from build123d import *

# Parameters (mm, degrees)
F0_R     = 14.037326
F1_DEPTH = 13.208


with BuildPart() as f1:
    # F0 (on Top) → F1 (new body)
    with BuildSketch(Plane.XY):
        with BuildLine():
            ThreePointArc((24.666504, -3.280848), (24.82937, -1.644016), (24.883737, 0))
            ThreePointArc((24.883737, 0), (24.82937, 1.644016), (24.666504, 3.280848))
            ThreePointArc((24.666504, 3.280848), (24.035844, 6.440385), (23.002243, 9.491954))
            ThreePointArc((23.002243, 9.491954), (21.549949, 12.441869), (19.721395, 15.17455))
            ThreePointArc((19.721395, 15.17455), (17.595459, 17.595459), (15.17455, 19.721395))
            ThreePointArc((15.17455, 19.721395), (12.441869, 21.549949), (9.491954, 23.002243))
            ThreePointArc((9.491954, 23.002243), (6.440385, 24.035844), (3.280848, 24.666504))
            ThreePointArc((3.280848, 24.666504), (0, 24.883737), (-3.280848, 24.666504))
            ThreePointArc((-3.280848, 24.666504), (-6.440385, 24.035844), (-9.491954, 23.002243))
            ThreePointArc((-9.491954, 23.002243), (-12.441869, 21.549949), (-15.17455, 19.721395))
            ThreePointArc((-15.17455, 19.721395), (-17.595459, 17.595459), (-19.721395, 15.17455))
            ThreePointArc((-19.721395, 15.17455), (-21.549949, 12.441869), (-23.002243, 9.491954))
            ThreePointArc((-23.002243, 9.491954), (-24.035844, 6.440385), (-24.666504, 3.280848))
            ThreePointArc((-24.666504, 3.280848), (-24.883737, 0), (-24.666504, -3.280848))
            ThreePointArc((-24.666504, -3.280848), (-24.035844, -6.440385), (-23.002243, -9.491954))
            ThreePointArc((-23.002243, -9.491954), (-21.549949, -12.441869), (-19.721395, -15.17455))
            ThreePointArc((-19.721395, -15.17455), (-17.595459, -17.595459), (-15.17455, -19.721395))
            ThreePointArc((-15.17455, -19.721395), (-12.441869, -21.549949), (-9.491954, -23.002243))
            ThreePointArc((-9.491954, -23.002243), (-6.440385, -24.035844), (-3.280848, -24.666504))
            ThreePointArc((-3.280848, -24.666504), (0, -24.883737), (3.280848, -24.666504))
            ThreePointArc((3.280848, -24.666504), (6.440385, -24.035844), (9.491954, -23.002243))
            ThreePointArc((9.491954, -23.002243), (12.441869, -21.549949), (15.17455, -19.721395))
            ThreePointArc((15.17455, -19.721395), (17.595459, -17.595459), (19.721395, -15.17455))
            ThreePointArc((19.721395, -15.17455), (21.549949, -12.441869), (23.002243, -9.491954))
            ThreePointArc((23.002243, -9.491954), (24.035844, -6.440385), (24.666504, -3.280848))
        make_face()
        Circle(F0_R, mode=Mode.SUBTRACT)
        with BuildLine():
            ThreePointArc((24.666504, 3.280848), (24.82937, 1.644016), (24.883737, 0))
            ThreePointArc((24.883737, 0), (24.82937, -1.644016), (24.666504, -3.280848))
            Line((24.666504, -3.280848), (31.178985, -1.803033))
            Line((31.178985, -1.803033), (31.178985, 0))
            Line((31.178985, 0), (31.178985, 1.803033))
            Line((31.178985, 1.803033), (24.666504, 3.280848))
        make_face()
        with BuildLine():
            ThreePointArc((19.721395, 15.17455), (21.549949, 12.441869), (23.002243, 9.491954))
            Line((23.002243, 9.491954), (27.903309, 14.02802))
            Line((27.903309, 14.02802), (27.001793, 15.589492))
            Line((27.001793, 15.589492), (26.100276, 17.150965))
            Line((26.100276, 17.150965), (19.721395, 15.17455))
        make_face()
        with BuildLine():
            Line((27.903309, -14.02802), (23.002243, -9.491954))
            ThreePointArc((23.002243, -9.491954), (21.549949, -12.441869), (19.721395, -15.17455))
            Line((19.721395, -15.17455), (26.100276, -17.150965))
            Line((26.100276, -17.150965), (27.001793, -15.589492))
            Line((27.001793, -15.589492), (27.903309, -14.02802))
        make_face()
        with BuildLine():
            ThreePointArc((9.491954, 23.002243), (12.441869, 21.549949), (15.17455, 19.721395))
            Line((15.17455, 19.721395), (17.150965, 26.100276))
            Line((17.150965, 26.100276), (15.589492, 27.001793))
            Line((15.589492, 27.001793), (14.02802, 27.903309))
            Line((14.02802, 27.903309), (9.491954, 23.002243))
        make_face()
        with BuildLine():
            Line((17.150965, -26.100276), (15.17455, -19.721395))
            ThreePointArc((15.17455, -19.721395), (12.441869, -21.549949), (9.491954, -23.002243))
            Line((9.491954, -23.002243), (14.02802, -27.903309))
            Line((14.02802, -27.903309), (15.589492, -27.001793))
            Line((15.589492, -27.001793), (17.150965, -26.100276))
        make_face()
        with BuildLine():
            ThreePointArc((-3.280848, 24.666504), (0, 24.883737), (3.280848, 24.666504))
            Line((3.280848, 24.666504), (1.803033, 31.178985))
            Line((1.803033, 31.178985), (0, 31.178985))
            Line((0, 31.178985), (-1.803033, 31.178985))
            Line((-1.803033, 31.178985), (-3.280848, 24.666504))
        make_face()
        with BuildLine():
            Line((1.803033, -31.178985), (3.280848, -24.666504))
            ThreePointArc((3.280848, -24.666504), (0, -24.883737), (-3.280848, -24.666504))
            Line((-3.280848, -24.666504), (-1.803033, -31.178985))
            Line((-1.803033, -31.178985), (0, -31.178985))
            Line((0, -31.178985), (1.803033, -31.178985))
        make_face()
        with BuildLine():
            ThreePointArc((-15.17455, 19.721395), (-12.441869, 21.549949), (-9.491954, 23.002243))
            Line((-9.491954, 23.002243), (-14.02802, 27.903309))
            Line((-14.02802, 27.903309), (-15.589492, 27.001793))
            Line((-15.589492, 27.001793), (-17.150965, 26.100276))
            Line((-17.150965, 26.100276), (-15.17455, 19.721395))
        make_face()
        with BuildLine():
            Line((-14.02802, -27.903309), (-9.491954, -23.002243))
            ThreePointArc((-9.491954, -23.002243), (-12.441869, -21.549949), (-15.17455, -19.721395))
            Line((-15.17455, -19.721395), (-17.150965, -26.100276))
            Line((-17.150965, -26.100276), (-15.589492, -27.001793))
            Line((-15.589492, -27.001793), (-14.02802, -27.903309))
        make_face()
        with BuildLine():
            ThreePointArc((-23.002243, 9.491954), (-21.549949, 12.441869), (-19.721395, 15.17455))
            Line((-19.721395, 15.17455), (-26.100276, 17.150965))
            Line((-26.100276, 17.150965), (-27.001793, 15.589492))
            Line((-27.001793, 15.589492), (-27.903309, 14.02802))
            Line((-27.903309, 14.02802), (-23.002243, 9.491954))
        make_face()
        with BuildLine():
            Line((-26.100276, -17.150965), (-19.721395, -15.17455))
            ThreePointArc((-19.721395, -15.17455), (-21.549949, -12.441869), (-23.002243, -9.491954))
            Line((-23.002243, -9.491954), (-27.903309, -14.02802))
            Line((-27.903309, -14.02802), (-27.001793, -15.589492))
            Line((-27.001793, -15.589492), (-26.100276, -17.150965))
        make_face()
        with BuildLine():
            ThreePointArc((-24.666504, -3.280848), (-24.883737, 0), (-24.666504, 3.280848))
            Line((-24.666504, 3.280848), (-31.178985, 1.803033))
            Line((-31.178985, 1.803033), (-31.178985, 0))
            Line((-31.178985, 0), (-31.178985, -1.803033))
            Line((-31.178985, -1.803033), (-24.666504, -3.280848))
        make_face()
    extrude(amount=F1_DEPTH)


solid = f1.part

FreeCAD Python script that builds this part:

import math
import FreeCAD as App
import Part
import Sketcher
Q = App.Units.Quantity

doc = App.newDocument("Part")
params = doc.addObject("Spreadsheet::Sheet", "Params")
for row, (alias, value) in enumerate([
    ("pad1_length", "0.52 in"),
], start=1):
    params.set(f"A{row}", alias)
    params.set(f"B{row}", "=" + value)
    params.setAlias(f"B{row}", alias)

body = doc.addObject("PartDesign::Body", "Body")

sketch1 = body.newObject("Sketcher::SketchObject", "Sketch")
sketch1.AttachmentSupport = (doc.getObject("XY_Plane"), [""])
sketch1.MapMode = "FlatFace"
sketch1.addGeometry(Part.ArcOfCircle(Part.Circle(App.Vector(-0.000052, 0.000015, 0), App.Vector(0, 0, 1), 24.883791), math.radians(-22.423644), math.radians(-7.576359)), False)
sketch1.addGeometry(Part.LineSegment(App.Vector(24.666504, -3.280848, 0), App.Vector(31.178985, -1.803033, 0)), False)
sketch1.addGeometry(Part.LineSegment(App.Vector(31.178985, -1.803033, 0), App.Vector(31.178985, 1.803033, 0)), False)
sketch1.addGeometry(Part.LineSegment(App.Vector(31.178985, 1.803033, 0), App.Vector(24.666504, 3.280848, 0)), False)
sketch1.addGeometry(Part.ArcOfCircle(Part.Circle(App.Vector(-0.000052, -0.000015, 0), App.Vector(0, 0, 1), 24.883791), math.radians(7.576359), math.radians(22.423644)), False)
sketch1.addGeometry(Part.LineSegment(App.Vector(23.002243, 9.491954, 0), App.Vector(27.903309, 14.02802, 0)), False)
sketch1.addGeometry(Part.LineSegment(App.Vector(27.903309, 14.02802, 0), App.Vector(27.001793, 15.589492, 0)), False)
sketch1.addGeometry(Part.LineSegment(App.Vector(27.001793, 15.589492, 0), App.Vector(26.100276, 17.150965, 0)), False)
sketch1.addGeometry(Part.LineSegment(App.Vector(26.100276, 17.150965, 0), App.Vector(19.721395, 15.17455, 0)), False)
sketch1.addGeometry(Part.ArcOfCircle(Part.Circle(App.Vector(-0.000057, -0.000057, 0), App.Vector(0, 0, 1), 24.883817), math.radians(37.576365), math.radians(52.423635)), False)
sketch1.addGeometry(Part.LineSegment(App.Vector(15.17455, 19.721395, 0), App.Vector(17.150965, 26.100276, 0)), False)
sketch1.addGeometry(Part.LineSegment(App.Vector(17.150965, 26.100276, 0), App.Vector(15.589492, 27.001793, 0)), False)
sketch1.addGeometry(Part.LineSegment(App.Vector(15.589492, 27.001793, 0), App.Vector(14.02802, 27.903309, 0)), False)
sketch1.addGeometry(Part.LineSegment(App.Vector(14.02802, 27.903309, 0), App.Vector(9.491954, 23.002243, 0)), False)
sketch1.addGeometry(Part.ArcOfCircle(Part.Circle(App.Vector(-0.000015, -0.000052, 0), App.Vector(0, 0, 1), 24.883791), math.radians(67.576356), math.radians(82.423641)), False)
sketch1.addGeometry(Part.LineSegment(App.Vector(3.280848, 24.666504, 0), App.Vector(1.803033, 31.178985, 0)), False)
sketch1.addGeometry(Part.LineSegment(App.Vector(1.803033, 31.178985, 0), App.Vector(-1.803033, 31.178985, 0)), False)
sketch1.addGeometry(Part.LineSegment(App.Vector(-1.803033, 31.178985, 0), App.Vector(-3.280848, 24.666504, 0)), False)
sketch1.addGeometry(Part.ArcOfCircle(Part.Circle(App.Vector(0.000015, -0.000052, 0), App.Vector(0, 0, 1), 24.883791), math.radians(97.576359), math.radians(112.423644)), False)
sketch1.addGeometry(Part.LineSegment(App.Vector(-9.491954, 23.002243, 0), App.Vector(-14.02802, 27.903309, 0)), False)
sketch1.addGeometry(Part.LineSegment(App.Vector(-14.02802, 27.903309, 0), App.Vector(-15.589492, 27.001793, 0)), False)
sketch1.addGeometry(Part.LineSegment(App.Vector(-15.589492, 27.001793, 0), App.Vector(-17.150965, 26.100276, 0)), False)
sketch1.addGeometry(Part.LineSegment(App.Vector(-17.150965, 26.100276, 0), App.Vector(-15.17455, 19.721395, 0)), False)
sketch1.addGeometry(Part.ArcOfCircle(Part.Circle(App.Vector(0.000057, -0.000057, 0), App.Vector(0, 0, 1), 24.883817), math.radians(127.576365), math.radians(142.423635)), False)
sketch1.addGeometry(Part.LineSegment(App.Vector(-19.721395, 15.17455, 0), App.Vector(-26.100276, 17.150965, 0)), False)
sketch1.addGeometry(Part.LineSegment(App.Vector(-26.100276, 17.150965, 0), App.Vector(-27.001793, 15.589492, 0)), False)
sketch1.addGeometry(Part.LineSegment(App.Vector(-27.001793, 15.589492, 0), App.Vector(-27.903309, 14.02802, 0)), False)
sketch1.addGeometry(Part.LineSegment(App.Vector(-27.903309, 14.02802, 0), App.Vector(-23.002243, 9.491954, 0)), False)
sketch1.addGeometry(Part.ArcOfCircle(Part.Circle(App.Vector(0.000052, -0.000015, 0), App.Vector(0, 0, 1), 24.883791), math.radians(157.576356), math.radians(172.423641)), False)
sketch1.addGeometry(Part.LineSegment(App.Vector(-24.666504, 3.280848, 0), App.Vector(-31.178985, 1.803033, 0)), False)
sketch1.addGeometry(Part.LineSegment(App.Vector(-31.178985, 1.803033, 0), App.Vector(-31.178985, -1.803033, 0)), False)
sketch1.addGeometry(Part.LineSegment(App.Vector(-31.178985, -1.803033, 0), App.Vector(-24.666504, -3.280848, 0)), False)
sketch1.addGeometry(Part.ArcOfCircle(Part.Circle(App.Vector(0.000052, 0.000015, 0), App.Vector(0, 0, 1), 24.883791), math.radians(-172.423641), math.radians(-157.576356)), False)
sketch1.addGeometry(Part.LineSegment(App.Vector(-23.002243, -9.491954, 0), App.Vector(-27.903309, -14.02802, 0)), False)
sketch1.addGeometry(Part.LineSegment(App.Vector(-27.903309, -14.02802, 0), App.Vector(-27.001793, -15.589492, 0)), False)
sketch1.addGeometry(Part.LineSegment(App.Vector(-27.001793, -15.589492, 0), App.Vector(-26.100276, -17.150965, 0)), False)
sketch1.addGeometry(Part.LineSegment(App.Vector(-26.100276, -17.150965, 0), App.Vector(-19.721395, -15.17455, 0)), False)
sketch1.addGeometry(Part.ArcOfCircle(Part.Circle(App.Vector(0.000057, 0.000057, 0), App.Vector(0, 0, 1), 24.883817), math.radians(-142.423635), math.radians(-127.576365)), False)
sketch1.addGeometry(Part.LineSegment(App.Vector(-15.17455, -19.721395, 0), App.Vector(-17.150965, -26.100276, 0)), False)
sketch1.addGeometry(Part.LineSegment(App.Vector(-17.150965, -26.100276, 0), App.Vector(-15.589492, -27.001793, 0)), False)
sketch1.addGeometry(Part.LineSegment(App.Vector(-15.589492, -27.001793, 0), App.Vector(-14.02802, -27.903309, 0)), False)
sketch1.addGeometry(Part.LineSegment(App.Vector(-14.02802, -27.903309, 0), App.Vector(-9.491954, -23.002243, 0)), False)
sketch1.addGeometry(Part.ArcOfCircle(Part.Circle(App.Vector(0.000015, 0.000052, 0), App.Vector(0, 0, 1), 24.883791), math.radians(-112.423644), math.radians(-97.576359)), False)
sketch1.addGeometry(Part.LineSegment(App.Vector(-3.280848, -24.666504, 0), App.Vector(-1.803033, -31.178985, 0)), False)
sketch1.addGeometry(Part.LineSegment(App.Vector(-1.803033, -31.178985, 0), App.Vector(1.803033, -31.178985, 0)), False)
sketch1.addGeometry(Part.LineSegment(App.Vector(1.803033, -31.178985, 0), App.Vector(3.280848, -24.666504, 0)), False)
sketch1.addGeometry(Part.ArcOfCircle(Part.Circle(App.Vector(-0.000015, 0.000052, 0), App.Vector(0, 0, 1), 24.883791), math.radians(-82.423641), math.radians(-67.576356)), False)
sketch1.addGeometry(Part.LineSegment(App.Vector(9.491954, -23.002243, 0), App.Vector(14.02802, -27.903309, 0)), False)
sketch1.addGeometry(Part.LineSegment(App.Vector(14.02802, -27.903309, 0), App.Vector(15.589492, -27.001793, 0)), False)
sketch1.addGeometry(Part.LineSegment(App.Vector(15.589492, -27.001793, 0), App.Vector(17.150965, -26.100276, 0)), False)
sketch1.addGeometry(Part.LineSegment(App.Vector(17.150965, -26.100276, 0), App.Vector(15.17455, -19.721395, 0)), False)
sketch1.addGeometry(Part.ArcOfCircle(Part.Circle(App.Vector(-0.000057, 0.000057, 0), App.Vector(0, 0, 1), 24.883817), math.radians(-52.423635), math.radians(-37.576365)), False)
sketch1.addGeometry(Part.LineSegment(App.Vector(19.721395, -15.17455, 0), App.Vector(26.100276, -17.150965, 0)), False)
sketch1.addGeometry(Part.LineSegment(App.Vector(26.100276, -17.150965, 0), App.Vector(27.001793, -15.589492, 0)), False)
sketch1.addGeometry(Part.LineSegment(App.Vector(27.001793, -15.589492, 0), App.Vector(27.903309, -14.02802, 0)), False)
sketch1.addGeometry(Part.LineSegment(App.Vector(27.903309, -14.02802, 0), App.Vector(23.002243, -9.491954, 0)), False)
sketch1.addGeometry(Part.Circle(App.Vector(0, 0, 0), App.Vector(0, 0, 1), 14.037326), False)
sketch1.addConstraint(Sketcher.Constraint("Coincident", 0, 2, 1, 1))
sketch1.addConstraint(Sketcher.Constraint("Coincident", 1, 2, 2, 1))
sketch1.addConstraint(Sketcher.Constraint("Coincident", 2, 2, 3, 1))
sketch1.addConstraint(Sketcher.Constraint("Coincident", 3, 2, 4, 1))
sketch1.addConstraint(Sketcher.Constraint("Coincident", 4, 2, 5, 1))
sketch1.addConstraint(Sketcher.Constraint("Coincident", 5, 2, 6, 1))
sketch1.addConstraint(Sketcher.Constraint("Coincident", 6, 2, 7, 1))
sketch1.addConstraint(Sketcher.Constraint("Coincident", 7, 2, 8, 1))
sketch1.addConstraint(Sketcher.Constraint("Coincident", 8, 2, 9, 1))
sketch1.addConstraint(Sketcher.Constraint("Coincident", 9, 2, 10, 1))
sketch1.addConstraint(Sketcher.Constraint("Coincident", 10, 2, 11, 1))
sketch1.addConstraint(Sketcher.Constraint("Coincident", 11, 2, 12, 1))
sketch1.addConstraint(Sketcher.Constraint("Coincident", 12, 2, 13, 1))
sketch1.addConstraint(Sketcher.Constraint("Coincident", 13, 2, 14, 1))
sketch1.addConstraint(Sketcher.Constraint("Coincident", 14, 2, 15, 1))
sketch1.addConstraint(Sketcher.Constraint("Coincident", 15, 2, 16, 1))
sketch1.addConstraint(Sketcher.Constraint("Coincident", 16, 2, 17, 1))
sketch1.addConstraint(Sketcher.Constraint("Coincident", 17, 2, 18, 1))
sketch1.addConstraint(Sketcher.Constraint("Coincident", 18, 2, 19, 1))
sketch1.addConstraint(Sketcher.Constraint("Coincident", 19, 2, 20, 1))
sketch1.addConstraint(Sketcher.Constraint("Coincident", 20, 2, 21, 1))
sketch1.addConstraint(Sketcher.Constraint("Coincident", 21, 2, 22, 1))
sketch1.addConstraint(Sketcher.Constraint("Coincident", 22, 2, 23, 1))
sketch1.addConstraint(Sketcher.Constraint("Coincident", 23, 2, 24, 1))
sketch1.addConstraint(Sketcher.Constraint("Coincident", 24, 2, 25, 1))
sketch1.addConstraint(Sketcher.Constraint("Coincident", 25, 2, 26, 1))
sketch1.addConstraint(Sketcher.Constraint("Coincident", 26, 2, 27, 1))
sketch1.addConstraint(Sketcher.Constraint("Coincident", 27, 2, 28, 1))
sketch1.addConstraint(Sketcher.Constraint("Coincident", 28, 2, 29, 1))
sketch1.addConstraint(Sketcher.Constraint("Coincident", 29, 2, 30, 1))
sketch1.addConstraint(Sketcher.Constraint("Coincident", 30, 2, 31, 1))
sketch1.addConstraint(Sketcher.Constraint("Coincident", 31, 2, 32, 1))
sketch1.addConstraint(Sketcher.Constraint("Coincident", 32, 2, 33, 1))
sketch1.addConstraint(Sketcher.Constraint("Coincident", 33, 2, 34, 1))
sketch1.addConstraint(Sketcher.Constraint("Coincident", 34, 2, 35, 1))
sketch1.addConstraint(Sketcher.Constraint("Coincident", 35, 2, 36, 1))
sketch1.addConstraint(Sketcher.Constraint("Coincident", 36, 2, 37, 1))
sketch1.addConstraint(Sketcher.Constraint("Coincident", 37, 2, 38, 1))
sketch1.addConstraint(Sketcher.Constraint("Coincident", 38, 2, 39, 1))
sketch1.addConstraint(Sketcher.Constraint("Coincident", 39, 2, 40, 1))
sketch1.addConstraint(Sketcher.Constraint("Coincident", 40, 2, 41, 1))
sketch1.addConstraint(Sketcher.Constraint("Coincident", 41, 2, 42, 1))
sketch1.addConstraint(Sketcher.Constraint("Coincident", 42, 2, 43, 1))
sketch1.addConstraint(Sketcher.Constraint("Coincident", 43, 2, 44, 1))
sketch1.addConstraint(Sketcher.Constraint("Coincident", 44, 2, 45, 1))
sketch1.addConstraint(Sketcher.Constraint("Coincident", 45, 2, 46, 1))
sketch1.addConstraint(Sketcher.Constraint("Coincident", 46, 2, 47, 1))
sketch1.addConstraint(Sketcher.Constraint("Coincident", 47, 2, 48, 1))
sketch1.addConstraint(Sketcher.Constraint("Coincident", 48, 2, 49, 1))
sketch1.addConstraint(Sketcher.Constraint("Coincident", 49, 2, 50, 1))
sketch1.addConstraint(Sketcher.Constraint("Coincident", 50, 2, 51, 1))
sketch1.addConstraint(Sketcher.Constraint("Coincident", 51, 2, 52, 1))
sketch1.addConstraint(Sketcher.Constraint("Coincident", 52, 2, 53, 1))
sketch1.addConstraint(Sketcher.Constraint("Coincident", 53, 2, 54, 1))
sketch1.addConstraint(Sketcher.Constraint("Coincident", 54, 2, 55, 1))
sketch1.addConstraint(Sketcher.Constraint("Coincident", 55, 2, 0, 1))
sketch1.addConstraint(Sketcher.Constraint("Vertical", 2))
sketch1.addConstraint(Sketcher.Constraint("Horizontal", 16))
sketch1.addConstraint(Sketcher.Constraint("Vertical", 30))
sketch1.addConstraint(Sketcher.Constraint("Horizontal", 44))
sketch1.addConstraint(Sketcher.Constraint("Coincident", 56, 3, -1, 1))
sketch1.addConstraint(Sketcher.Constraint("Equal", 0, 4))
sketch1.addConstraint(Sketcher.Constraint("Equal", 4, 14))
sketch1.addConstraint(Sketcher.Constraint("Equal", 14, 18))
sketch1.addConstraint(Sketcher.Constraint("Equal", 9, 23))
sketch1.addConstraint(Sketcher.Constraint("Equal", 18, 28))
sketch1.addConstraint(Sketcher.Constraint("Equal", 28, 32))
sketch1.addConstraint(Sketcher.Constraint("Equal", 23, 37))
sketch1.addConstraint(Sketcher.Constraint("Equal", 32, 42))
sketch1.addConstraint(Sketcher.Constraint("Equal", 42, 46))
sketch1.addConstraint(Sketcher.Constraint("Equal", 37, 51))
sketch1.addConstraint(Sketcher.Constraint("Symmetric", 0, 3, 28, 3, -1, 1))
sketch1.addConstraint(Sketcher.Constraint("Symmetric", 4, 3, 32, 3, -1, 1))
sketch1.addConstraint(Sketcher.Constraint("Symmetric", 9, 3, 37, 3, -1, 1))
sketch1.addConstraint(Sketcher.Constraint("Symmetric", 14, 3, 42, 3, -1, 1))
sketch1.addConstraint(Sketcher.Constraint("Symmetric", 18, 3, 46, 3, -1, 1))
sketch1.addConstraint(Sketcher.Constraint("Symmetric", 23, 3, 51, 3, -1, 1))
sketch1.addConstraint(Sketcher.Constraint("Symmetric", 1, 2, 29, 2, -1, 1))
sketch1.addConstraint(Sketcher.Constraint("Symmetric", 5, 2, 33, 2, -1, 1))
sketch1.addConstraint(Sketcher.Constraint("Symmetric", 6, 2, 34, 2, -1, 1))
sketch1.addConstraint(Sketcher.Constraint("Symmetric", 7, 2, 35, 2, -1, 1))
sketch1.addConstraint(Sketcher.Constraint("Symmetric", 10, 2, 38, 2, -1, 1))
sketch1.addConstraint(Sketcher.Constraint("Symmetric", 11, 2, 39, 2, -1, 1))
sketch1.addConstraint(Sketcher.Constraint("Symmetric", 12, 2, 40, 2, -1, 1))
sketch1.addConstraint(Sketcher.Constraint("Symmetric", 15, 2, 43, 2, -1, 1))
sketch1.addConstraint(Sketcher.Constraint("Symmetric", 19, 2, 47, 2, -1, 1))
sketch1.addConstraint(Sketcher.Constraint("Symmetric", 20, 2, 48, 2, -1, 1))
sketch1.addConstraint(Sketcher.Constraint("Symmetric", 21, 2, 49, 2, -1, 1))
sketch1.addConstraint(Sketcher.Constraint("Symmetric", 24, 2, 52, 2, -1, 1))
sketch1.addConstraint(Sketcher.Constraint("Symmetric", 25, 2, 53, 2, -1, 1))
sketch1.addConstraint(Sketcher.Constraint("Symmetric", 26, 2, 54, 2, -1, 1))
sketch1.addConstraint(Sketcher.Constraint("Symmetric", 14, 3, 18, 3, -2))
sketch1.addConstraint(Sketcher.Constraint("Symmetric", 9, 3, 23, 3, -2))
sketch1.addConstraint(Sketcher.Constraint("Symmetric", 4, 3, 28, 3, -2))
sketch1.addConstraint(Sketcher.Constraint("Symmetric", 12, 2, 19, 2, -2))
sketch1.addConstraint(Sketcher.Constraint("Symmetric", 11, 2, 20, 2, -2))
sketch1.addConstraint(Sketcher.Constraint("Symmetric", 10, 2, 21, 2, -2))
sketch1.addConstraint(Sketcher.Constraint("Symmetric", 7, 2, 24, 2, -2))
sketch1.addConstraint(Sketcher.Constraint("Symmetric", 6, 2, 25, 2, -2))
sketch1.addConstraint(Sketcher.Constraint("Symmetric", 5, 2, 26, 2, -2))
sketch1.addConstraint(Sketcher.Constraint("Parallel", 6, 7))
sketch1.addConstraint(Sketcher.Constraint("Parallel", 11, 12))
sketch1.addConstraint(Sketcher.Constraint("Perpendicular", 1, 15))
sketch1.addConstraint(Sketcher.Constraint("Perpendicular", 3, 17))
sketch1.addConstraint(Sketcher.Constraint("Perpendicular", 5, 19))
sketch1.addConstraint(Sketcher.Constraint("Perpendicular", 7, 20))
sketch1.addConstraint(Sketcher.Constraint("Perpendicular", 8, 22))
sketch1.addConstraint(Sketcher.Constraint("Perpendicular", 10, 24))
sketch1.addConstraint(Sketcher.Constraint("Perpendicular", 13, 27))
sketch1.addConstraint(Sketcher.Constraint("Perpendicular", 15, 29))
sketch1.addConstraint(Sketcher.Constraint("Perpendicular", 17, 31))
sketch1.addConstraint(Sketcher.Constraint("Perpendicular", 19, 33))
sketch1.addConstraint(Sketcher.Constraint("Perpendicular", 22, 36))
sketch1.addConstraint(Sketcher.Constraint("Perpendicular", 24, 38))
sketch1.addConstraint(Sketcher.Constraint("Perpendicular", 27, 41))
sketch1.addConstraint(Sketcher.Constraint("Perpendicular", 29, 43))
sketch1.addConstraint(Sketcher.Constraint("Perpendicular", 31, 45))
sketch1.addConstraint(Sketcher.Constraint("Perpendicular", 33, 47))
sketch1.addConstraint(Sketcher.Constraint("Perpendicular", 36, 50))
sketch1.addConstraint(Sketcher.Constraint("Perpendicular", 38, 52))
sketch1.addConstraint(Sketcher.Constraint("Perpendicular", 41, 55))
sketch1.addConstraint(Sketcher.Constraint("Horizontal", 14, 2, 17, 2))
sketch1.addConstraint(Sketcher.Constraint("Horizontal", 13, 2, 18, 2))
sketch1.addConstraint(Sketcher.Constraint("Horizontal", 9, 2, 22, 2))
sketch1.addConstraint(Sketcher.Constraint("Horizontal", 3, 2, 28, 2))
sketch1.addConstraint(Sketcher.Constraint("Horizontal", 2, 2, 29, 2))
sketch1.addConstraint(Sketcher.Constraint("Horizontal", 1, 2, 30, 2))
sketch1.addConstraint(Sketcher.Constraint("Horizontal", 42, 2, 45, 2))
sketch1.addConstraint(Sketcher.Constraint("Equal", 44, 2))
sketch1.addConstraint(Sketcher.Constraint("Equal", 3, 5))
sketch1.addConstraint(Sketcher.Constraint("Equal", 6, 7))
sketch1.addConstraint(Sketcher.Constraint("Equal", 5, 8))
sketch1.addConstraint(Sketcher.Constraint("Equal", 8, 10))
sketch1.addConstraint(Sketcher.Constraint("Equal", 7, 11))
sketch1.addConstraint(Sketcher.Constraint("Equal", 11, 12))
sketch1.addConstraint(Sketcher.Constraint("Equal", 10, 13))
sketch1.addConstraint(Sketcher.Constraint("Equal", 13, 15))
sketch1.addConstraint(Sketcher.Constraint("Angle", 6, Q("119.999992 deg")))
sketch1.addConstraint(Sketcher.Constraint("Radius", 0, 24.883791))
sketch1.addConstraint(Sketcher.Constraint("Diameter", 56, 28.074652))
sketch1.addConstraint(Sketcher.Constraint("DistanceX", -1, 1, 4, 2, Q("0.9056001 in")))
sketch1.addConstraint(Sketcher.Constraint("DistanceY", -1, 1, 13, 2, Q("0.9056001 in")))
sketch1.addConstraint(Sketcher.Constraint("Radius", 9, 24.883817))
sketch1.addConstraint(Sketcher.Constraint("Distance", 1, 6.67805))
sketch1.addConstraint(Sketcher.Constraint("DistanceX", 16, 2, 16, 1, 3.606066))
sketch1.addConstraint(Sketcher.Constraint("DistanceY", -1, 1, 3, 2, 3.280848))
sketch1.addConstraint(Sketcher.Constraint("DistanceX", -1, 1, 5, 2, 27.903309))
sketch1.addConstraint(Sketcher.Constraint("DistanceY", -1, 1, 5, 2, 14.02802))
sketch1.addConstraint(Sketcher.Constraint("DistanceY", -1, 1, 8, 2, 15.17455))
sketch1.addConstraint(Sketcher.Constraint("DistanceX", -1, 1, 9, 2, 15.17455))
sketch1.addConstraint(Sketcher.Constraint("Distance", 6, 1.803032))
sketch1.addConstraint(Sketcher.Constraint("DistanceX", -1, 1, 0, 2, 24.666504))
sketch1.addConstraint(Sketcher.Constraint("DistanceY", -1, 1, 14, 2, 24.666504))
pad1 = body.newObject("PartDesign::Pad", "Pad")
pad1.Profile = sketch1
pad1.setExpression("Length", "Params.pad1_length")

doc.recompute()
